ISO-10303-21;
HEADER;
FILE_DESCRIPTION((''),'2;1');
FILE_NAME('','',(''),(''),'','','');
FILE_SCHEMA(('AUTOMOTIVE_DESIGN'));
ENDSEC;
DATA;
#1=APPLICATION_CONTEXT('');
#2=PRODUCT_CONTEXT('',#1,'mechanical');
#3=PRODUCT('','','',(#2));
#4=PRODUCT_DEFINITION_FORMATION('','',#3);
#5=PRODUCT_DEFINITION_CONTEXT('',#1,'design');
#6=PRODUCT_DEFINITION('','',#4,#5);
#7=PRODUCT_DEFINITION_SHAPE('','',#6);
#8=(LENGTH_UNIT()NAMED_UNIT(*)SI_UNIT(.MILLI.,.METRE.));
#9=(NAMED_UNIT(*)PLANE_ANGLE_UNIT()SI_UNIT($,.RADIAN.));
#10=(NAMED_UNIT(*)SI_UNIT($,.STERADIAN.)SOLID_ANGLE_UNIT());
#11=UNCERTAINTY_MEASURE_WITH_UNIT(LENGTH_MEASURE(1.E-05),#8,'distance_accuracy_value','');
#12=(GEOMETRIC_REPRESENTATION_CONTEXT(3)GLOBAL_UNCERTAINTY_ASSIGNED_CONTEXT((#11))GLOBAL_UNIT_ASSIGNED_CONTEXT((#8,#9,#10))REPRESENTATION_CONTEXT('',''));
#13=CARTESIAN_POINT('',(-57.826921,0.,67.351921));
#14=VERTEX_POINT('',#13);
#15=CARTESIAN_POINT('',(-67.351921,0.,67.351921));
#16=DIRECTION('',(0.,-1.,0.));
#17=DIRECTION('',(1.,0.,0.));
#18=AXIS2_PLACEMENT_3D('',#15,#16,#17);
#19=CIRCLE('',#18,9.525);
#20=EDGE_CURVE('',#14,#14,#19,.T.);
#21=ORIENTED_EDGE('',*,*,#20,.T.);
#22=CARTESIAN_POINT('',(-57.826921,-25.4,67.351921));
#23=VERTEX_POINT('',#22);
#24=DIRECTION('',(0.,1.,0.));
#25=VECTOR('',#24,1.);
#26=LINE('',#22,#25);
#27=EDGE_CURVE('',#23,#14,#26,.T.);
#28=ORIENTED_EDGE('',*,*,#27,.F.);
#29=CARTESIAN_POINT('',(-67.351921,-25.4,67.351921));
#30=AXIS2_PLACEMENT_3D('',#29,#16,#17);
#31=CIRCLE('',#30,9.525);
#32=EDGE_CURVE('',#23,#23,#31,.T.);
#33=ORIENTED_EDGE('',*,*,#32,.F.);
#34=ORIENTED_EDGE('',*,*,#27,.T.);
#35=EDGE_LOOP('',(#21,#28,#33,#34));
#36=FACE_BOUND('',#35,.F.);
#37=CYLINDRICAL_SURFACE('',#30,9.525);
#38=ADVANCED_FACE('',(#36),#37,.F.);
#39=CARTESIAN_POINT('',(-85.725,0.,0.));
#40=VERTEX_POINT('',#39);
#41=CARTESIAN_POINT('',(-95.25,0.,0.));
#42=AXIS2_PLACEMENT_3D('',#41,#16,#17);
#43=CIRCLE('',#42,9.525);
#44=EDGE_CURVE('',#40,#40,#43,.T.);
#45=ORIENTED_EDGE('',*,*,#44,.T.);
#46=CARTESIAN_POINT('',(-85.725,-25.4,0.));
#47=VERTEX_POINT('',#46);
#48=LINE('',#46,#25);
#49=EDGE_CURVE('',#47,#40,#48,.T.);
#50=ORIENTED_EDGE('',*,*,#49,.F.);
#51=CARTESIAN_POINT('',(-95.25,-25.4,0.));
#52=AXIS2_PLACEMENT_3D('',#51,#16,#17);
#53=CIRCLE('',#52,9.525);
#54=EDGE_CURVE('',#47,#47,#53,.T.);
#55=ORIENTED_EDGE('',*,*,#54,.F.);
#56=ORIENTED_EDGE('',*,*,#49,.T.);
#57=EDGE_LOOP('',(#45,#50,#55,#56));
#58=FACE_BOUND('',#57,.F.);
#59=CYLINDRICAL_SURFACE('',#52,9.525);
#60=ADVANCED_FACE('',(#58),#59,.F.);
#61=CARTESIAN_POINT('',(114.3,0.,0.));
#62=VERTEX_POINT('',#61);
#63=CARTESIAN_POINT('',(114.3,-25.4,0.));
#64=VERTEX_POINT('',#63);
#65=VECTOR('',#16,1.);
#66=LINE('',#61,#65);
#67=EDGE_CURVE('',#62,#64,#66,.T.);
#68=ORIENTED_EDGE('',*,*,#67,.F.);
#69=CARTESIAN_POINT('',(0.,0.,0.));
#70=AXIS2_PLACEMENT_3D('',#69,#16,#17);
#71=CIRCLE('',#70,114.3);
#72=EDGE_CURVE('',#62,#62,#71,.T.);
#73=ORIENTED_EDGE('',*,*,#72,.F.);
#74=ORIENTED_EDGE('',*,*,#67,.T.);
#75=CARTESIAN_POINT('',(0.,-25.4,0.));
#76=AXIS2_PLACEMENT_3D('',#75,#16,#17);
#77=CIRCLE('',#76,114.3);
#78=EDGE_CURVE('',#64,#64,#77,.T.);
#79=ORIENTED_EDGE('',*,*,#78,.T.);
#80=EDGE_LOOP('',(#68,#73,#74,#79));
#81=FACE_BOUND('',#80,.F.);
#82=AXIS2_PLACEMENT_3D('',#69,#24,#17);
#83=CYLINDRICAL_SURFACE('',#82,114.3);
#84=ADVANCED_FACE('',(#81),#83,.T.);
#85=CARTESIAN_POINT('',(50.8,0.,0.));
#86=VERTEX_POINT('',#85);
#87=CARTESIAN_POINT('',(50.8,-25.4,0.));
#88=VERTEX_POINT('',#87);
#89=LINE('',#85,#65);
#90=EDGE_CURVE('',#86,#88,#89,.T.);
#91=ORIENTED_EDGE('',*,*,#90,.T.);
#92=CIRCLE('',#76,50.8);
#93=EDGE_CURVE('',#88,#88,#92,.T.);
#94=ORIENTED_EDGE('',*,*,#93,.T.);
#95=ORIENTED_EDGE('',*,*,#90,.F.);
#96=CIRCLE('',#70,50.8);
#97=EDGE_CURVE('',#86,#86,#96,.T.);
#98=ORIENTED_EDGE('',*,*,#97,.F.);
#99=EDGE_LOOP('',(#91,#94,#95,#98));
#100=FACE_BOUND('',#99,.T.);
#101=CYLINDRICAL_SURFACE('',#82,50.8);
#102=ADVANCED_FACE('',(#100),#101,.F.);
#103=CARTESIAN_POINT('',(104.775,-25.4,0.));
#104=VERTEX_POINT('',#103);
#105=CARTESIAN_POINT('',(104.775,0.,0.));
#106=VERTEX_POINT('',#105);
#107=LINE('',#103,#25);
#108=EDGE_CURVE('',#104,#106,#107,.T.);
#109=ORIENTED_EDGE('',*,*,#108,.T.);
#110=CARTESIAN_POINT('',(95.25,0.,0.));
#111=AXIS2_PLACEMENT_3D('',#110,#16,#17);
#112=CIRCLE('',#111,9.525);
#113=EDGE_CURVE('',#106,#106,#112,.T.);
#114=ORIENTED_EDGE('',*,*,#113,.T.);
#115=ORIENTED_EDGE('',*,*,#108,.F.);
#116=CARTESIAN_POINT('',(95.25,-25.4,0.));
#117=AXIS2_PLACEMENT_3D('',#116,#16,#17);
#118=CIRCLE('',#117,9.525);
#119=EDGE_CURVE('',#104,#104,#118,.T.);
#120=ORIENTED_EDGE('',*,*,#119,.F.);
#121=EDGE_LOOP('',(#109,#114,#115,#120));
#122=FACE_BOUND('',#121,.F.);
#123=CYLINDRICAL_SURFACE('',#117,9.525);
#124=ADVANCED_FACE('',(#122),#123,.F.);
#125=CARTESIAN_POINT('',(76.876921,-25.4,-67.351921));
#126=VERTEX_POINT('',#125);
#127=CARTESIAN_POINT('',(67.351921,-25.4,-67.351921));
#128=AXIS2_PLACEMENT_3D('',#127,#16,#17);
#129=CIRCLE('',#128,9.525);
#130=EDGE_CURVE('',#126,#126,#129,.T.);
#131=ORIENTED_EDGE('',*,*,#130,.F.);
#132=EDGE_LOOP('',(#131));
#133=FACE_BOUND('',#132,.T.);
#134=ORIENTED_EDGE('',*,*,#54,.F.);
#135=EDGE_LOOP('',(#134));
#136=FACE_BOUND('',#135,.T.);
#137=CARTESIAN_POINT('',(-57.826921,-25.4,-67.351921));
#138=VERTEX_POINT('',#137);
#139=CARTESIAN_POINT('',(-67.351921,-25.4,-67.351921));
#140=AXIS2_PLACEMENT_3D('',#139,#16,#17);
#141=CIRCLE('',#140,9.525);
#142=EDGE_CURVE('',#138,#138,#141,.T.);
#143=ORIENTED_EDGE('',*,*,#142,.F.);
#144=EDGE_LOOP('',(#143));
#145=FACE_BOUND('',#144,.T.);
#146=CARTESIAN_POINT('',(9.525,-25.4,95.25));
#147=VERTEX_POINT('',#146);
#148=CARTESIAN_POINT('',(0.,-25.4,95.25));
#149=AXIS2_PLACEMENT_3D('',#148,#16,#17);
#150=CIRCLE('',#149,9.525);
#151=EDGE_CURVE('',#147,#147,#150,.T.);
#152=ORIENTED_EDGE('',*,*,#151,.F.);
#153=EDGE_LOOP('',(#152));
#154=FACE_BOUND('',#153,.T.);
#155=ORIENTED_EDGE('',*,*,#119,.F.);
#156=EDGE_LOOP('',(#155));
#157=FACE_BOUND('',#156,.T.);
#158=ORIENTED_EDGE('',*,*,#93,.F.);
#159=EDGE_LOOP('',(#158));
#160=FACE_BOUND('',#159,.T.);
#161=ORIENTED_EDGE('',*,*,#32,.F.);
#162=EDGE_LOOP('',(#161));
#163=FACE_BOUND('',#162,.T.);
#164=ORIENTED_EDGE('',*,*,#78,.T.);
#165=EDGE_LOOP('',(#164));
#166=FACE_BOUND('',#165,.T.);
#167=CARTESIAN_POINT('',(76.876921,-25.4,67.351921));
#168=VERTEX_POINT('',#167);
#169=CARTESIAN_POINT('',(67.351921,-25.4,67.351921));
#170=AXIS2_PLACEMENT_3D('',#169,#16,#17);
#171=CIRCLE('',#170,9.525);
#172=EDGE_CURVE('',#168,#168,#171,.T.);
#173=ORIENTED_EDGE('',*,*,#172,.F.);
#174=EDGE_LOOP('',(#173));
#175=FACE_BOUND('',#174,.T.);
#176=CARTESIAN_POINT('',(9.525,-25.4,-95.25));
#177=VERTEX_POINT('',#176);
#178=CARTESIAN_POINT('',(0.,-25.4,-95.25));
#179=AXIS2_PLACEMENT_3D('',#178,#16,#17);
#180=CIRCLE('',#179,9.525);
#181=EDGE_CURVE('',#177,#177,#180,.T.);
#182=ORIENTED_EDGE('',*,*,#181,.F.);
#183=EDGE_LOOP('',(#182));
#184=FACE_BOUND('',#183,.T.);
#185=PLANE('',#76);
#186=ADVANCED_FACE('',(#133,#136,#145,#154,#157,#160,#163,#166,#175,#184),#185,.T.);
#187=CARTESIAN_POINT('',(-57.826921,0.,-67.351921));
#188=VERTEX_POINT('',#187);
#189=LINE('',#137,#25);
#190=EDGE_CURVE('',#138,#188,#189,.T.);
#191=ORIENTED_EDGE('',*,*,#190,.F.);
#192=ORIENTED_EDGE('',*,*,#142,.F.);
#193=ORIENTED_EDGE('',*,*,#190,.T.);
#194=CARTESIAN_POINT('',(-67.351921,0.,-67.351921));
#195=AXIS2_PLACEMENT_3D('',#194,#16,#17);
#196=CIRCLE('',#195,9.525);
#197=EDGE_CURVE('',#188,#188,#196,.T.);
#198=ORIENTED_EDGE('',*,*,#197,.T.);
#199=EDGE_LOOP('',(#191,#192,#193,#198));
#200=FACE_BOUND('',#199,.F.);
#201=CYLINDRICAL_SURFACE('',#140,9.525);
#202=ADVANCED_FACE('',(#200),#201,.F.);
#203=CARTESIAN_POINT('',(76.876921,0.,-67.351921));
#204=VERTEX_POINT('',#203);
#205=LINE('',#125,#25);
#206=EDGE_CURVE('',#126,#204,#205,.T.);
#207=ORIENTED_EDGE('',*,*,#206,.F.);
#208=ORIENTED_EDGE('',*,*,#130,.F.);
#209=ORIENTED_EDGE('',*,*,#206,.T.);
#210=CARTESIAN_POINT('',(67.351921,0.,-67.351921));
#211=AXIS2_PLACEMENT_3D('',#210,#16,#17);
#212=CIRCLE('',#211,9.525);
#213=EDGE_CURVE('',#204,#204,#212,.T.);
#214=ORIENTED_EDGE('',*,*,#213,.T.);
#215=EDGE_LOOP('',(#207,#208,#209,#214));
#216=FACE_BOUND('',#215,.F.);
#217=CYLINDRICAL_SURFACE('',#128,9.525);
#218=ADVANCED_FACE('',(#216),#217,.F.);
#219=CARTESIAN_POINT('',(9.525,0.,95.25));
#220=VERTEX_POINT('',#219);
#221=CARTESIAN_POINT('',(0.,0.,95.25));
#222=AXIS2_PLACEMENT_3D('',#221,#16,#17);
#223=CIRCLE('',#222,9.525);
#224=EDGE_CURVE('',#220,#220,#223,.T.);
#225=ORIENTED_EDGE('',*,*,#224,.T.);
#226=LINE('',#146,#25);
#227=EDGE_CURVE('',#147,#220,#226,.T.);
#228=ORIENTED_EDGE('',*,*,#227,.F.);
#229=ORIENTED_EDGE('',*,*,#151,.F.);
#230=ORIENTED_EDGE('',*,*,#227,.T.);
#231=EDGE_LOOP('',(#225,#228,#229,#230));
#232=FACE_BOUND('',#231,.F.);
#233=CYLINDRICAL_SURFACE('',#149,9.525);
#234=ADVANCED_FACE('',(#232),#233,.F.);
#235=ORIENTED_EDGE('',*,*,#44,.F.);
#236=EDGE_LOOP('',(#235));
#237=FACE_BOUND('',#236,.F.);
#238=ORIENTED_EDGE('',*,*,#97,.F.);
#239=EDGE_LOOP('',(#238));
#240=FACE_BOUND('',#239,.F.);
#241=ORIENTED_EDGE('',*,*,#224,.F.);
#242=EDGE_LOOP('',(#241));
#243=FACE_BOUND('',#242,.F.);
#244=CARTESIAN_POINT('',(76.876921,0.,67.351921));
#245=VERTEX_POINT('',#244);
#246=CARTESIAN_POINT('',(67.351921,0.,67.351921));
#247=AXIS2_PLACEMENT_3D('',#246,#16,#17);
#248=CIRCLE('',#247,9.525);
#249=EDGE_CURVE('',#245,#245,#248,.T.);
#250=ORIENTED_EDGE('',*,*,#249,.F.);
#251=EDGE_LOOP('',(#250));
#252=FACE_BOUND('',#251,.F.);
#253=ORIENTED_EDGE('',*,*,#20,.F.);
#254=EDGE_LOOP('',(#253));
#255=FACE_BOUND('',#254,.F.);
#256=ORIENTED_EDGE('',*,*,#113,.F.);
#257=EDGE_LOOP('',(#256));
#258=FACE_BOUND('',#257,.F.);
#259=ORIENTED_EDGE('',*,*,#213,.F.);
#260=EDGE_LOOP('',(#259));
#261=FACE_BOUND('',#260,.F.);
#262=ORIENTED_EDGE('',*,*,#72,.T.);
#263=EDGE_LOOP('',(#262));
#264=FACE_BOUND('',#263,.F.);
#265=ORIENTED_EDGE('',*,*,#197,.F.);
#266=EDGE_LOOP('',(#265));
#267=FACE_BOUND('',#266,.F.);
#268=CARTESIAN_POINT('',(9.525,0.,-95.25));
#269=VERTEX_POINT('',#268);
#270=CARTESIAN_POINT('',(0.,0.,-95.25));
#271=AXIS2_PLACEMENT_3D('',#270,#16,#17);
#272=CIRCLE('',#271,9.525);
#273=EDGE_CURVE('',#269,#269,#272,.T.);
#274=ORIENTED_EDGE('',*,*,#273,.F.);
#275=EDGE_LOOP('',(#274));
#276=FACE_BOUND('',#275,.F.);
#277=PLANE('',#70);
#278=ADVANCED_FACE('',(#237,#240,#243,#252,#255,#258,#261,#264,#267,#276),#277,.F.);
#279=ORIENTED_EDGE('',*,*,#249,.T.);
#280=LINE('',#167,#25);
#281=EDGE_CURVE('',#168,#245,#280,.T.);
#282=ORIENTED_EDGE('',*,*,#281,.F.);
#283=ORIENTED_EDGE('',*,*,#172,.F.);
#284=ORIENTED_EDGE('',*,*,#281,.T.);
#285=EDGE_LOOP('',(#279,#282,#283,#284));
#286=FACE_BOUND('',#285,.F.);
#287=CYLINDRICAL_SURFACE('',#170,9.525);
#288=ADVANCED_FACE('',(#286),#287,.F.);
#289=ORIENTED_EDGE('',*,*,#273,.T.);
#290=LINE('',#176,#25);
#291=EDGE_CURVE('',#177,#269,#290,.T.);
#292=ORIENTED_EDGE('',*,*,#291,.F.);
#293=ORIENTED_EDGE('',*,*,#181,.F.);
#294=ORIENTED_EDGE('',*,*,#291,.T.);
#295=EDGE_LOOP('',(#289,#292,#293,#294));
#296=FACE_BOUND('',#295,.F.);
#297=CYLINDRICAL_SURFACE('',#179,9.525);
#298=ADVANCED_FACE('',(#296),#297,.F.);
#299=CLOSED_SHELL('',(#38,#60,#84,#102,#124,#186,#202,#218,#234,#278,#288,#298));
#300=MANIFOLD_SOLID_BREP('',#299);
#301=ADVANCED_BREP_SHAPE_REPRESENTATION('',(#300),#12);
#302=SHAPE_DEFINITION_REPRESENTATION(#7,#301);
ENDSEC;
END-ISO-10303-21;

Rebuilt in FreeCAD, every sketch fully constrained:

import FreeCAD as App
import Part
import Sketcher
Q = App.Units.Quantity

doc = App.newDocument("Part")
body = doc.addObject("PartDesign::Body", "Body")

# Sketch on XZ plane
sketch1 = doc.addObject("Sketcher::SketchObject", "Sketch")
body.addObject(sketch1)
sketch1.AttachmentSupport = (doc.XZ_Plane, [""])
sketch1.MapMode = "FlatFace"
sketch1.addGeometry(Part.Circle(App.Vector(0, 0, 0), App.Vector(0, 0, 1), 114), False)
sketch1.addGeometry(Part.Circle(App.Vector(0, 0, 0), App.Vector(0, 0, 1), 51), False)
sketch1.addConstraint(Sketcher.Constraint("Coincident", 0, 3, -1, 1))
sketch1.addConstraint(Sketcher.Constraint("Coincident", 1, 3, -1, 1))
sketch1.addConstraint(Sketcher.Constraint("Diameter", 0, Q("9 in")))
sketch1.addConstraint(Sketcher.Constraint("Diameter", 1, Q("4 in")))
pad1 = doc.addObject("PartDesign::Pad", "Pad")
body.addObject(pad1)
pad1.Profile = sketch1
pad1.Length = Q("1 in")

# Sketch on XZ plane
sketch2 = doc.addObject("Sketcher::SketchObject", "Sketch001")
body.addObject(sketch2)
sketch2.AttachmentSupport = (doc.XZ_Plane, [""])
sketch2.MapMode = "FlatFace"
sketch2.AttachmentOffset = App.Placement(App.Vector(0, 0, 1 * 25.4), App.Rotation())
sketch2.addGeometry(Part.Circle(App.Vector(0, 95, 0), App.Vector(0, 0, 1), 10), False)
sketch2.addGeometry(Part.Circle(App.Vector(-67, 67, 0), App.Vector(0, 0, 1), 10), False)
sketch2.addGeometry(Part.Circle(App.Vector(-95, 0, 0), App.Vector(0, 0, 1), 10), False)
sketch2.addGeometry(Part.Circle(App.Vector(-67, -67, 0), App.Vector(0, 0, 1), 10), False)
sketch2.addGeometry(Part.Circle(App.Vector(0, -95, 0), App.Vector(0, 0, 1), 10), False)
sketch2.addGeometry(Part.Circle(App.Vector(67, -67, 0), App.Vector(0, 0, 1), 10), False)
sketch2.addGeometry(Part.Circle(App.Vector(95, 0, 0), App.Vector(0, 0, 1), 10), False)
sketch2.addGeometry(Part.Circle(App.Vector(67, 67, 0), App.Vector(0, 0, 1), 10), False)
sketch2.addConstraint(Sketcher.Constraint("Equal", 0, 1))
sketch2.addConstraint(Sketcher.Constraint("Equal", 1, 2))
sketch2.addConstraint(Sketcher.Constraint("Equal", 2, 3))
sketch2.addConstraint(Sketcher.Constraint("Equal", 3, 4))
sketch2.addConstraint(Sketcher.Constraint("Equal", 4, 5))
sketch2.addConstraint(Sketcher.Constraint("Equal", 5, 6))
sketch2.addConstraint(Sketcher.Constraint("Equal", 6, 7))
sketch2.addConstraint(Sketcher.Constraint("Symmetric", 0, 3, 4, 3, -1, 1))
sketch2.addConstraint(Sketcher.Constraint("Symmetric", 1, 3, 5, 3, -1, 1))
sketch2.addConstraint(Sketcher.Constraint("Symmetric", 2, 3, 6, 3, -1, 1))
sketch2.addConstraint(Sketcher.Constraint("Symmetric", 3, 3, 7, 3, -1, 1))
sketch2.addConstraint(Sketcher.Constraint("Symmetric", 3, 3, 5, 3, -2))
sketch2.addConstraint(Sketcher.Constraint("PointOnObject", 0, 3, -2))
sketch2.addConstraint(Sketcher.Constraint("PointOnObject", 2, 3, -1))
sketch2.addConstraint(Sketcher.Constraint("Diameter", 0, Q("0.75 in")))
sketch2.addConstraint(Sketcher.Constraint("DistanceY", 4, 3, 0, 3, Q("7.5 in")))
sketch2.addConstraint(Sketcher.Constraint("DistanceX", 2, 3, -1, 1, Q("3.75 in")))
sketch2.addConstraint(Sketcher.Constraint("DistanceX", 1, 3, -1, 1, Q("67.351921 mm")))
sketch2.addConstraint(Sketcher.Constraint("DistanceY", -1, 1, 1, 3, Q("67.351921 mm")))
pocket1 = doc.addObject("PartDesign::Pocket", "Pocket")
body.addObject(pocket1)
pocket1.Profile = sketch2
pocket1.Type = "ThroughAll"

doc.recompute()
